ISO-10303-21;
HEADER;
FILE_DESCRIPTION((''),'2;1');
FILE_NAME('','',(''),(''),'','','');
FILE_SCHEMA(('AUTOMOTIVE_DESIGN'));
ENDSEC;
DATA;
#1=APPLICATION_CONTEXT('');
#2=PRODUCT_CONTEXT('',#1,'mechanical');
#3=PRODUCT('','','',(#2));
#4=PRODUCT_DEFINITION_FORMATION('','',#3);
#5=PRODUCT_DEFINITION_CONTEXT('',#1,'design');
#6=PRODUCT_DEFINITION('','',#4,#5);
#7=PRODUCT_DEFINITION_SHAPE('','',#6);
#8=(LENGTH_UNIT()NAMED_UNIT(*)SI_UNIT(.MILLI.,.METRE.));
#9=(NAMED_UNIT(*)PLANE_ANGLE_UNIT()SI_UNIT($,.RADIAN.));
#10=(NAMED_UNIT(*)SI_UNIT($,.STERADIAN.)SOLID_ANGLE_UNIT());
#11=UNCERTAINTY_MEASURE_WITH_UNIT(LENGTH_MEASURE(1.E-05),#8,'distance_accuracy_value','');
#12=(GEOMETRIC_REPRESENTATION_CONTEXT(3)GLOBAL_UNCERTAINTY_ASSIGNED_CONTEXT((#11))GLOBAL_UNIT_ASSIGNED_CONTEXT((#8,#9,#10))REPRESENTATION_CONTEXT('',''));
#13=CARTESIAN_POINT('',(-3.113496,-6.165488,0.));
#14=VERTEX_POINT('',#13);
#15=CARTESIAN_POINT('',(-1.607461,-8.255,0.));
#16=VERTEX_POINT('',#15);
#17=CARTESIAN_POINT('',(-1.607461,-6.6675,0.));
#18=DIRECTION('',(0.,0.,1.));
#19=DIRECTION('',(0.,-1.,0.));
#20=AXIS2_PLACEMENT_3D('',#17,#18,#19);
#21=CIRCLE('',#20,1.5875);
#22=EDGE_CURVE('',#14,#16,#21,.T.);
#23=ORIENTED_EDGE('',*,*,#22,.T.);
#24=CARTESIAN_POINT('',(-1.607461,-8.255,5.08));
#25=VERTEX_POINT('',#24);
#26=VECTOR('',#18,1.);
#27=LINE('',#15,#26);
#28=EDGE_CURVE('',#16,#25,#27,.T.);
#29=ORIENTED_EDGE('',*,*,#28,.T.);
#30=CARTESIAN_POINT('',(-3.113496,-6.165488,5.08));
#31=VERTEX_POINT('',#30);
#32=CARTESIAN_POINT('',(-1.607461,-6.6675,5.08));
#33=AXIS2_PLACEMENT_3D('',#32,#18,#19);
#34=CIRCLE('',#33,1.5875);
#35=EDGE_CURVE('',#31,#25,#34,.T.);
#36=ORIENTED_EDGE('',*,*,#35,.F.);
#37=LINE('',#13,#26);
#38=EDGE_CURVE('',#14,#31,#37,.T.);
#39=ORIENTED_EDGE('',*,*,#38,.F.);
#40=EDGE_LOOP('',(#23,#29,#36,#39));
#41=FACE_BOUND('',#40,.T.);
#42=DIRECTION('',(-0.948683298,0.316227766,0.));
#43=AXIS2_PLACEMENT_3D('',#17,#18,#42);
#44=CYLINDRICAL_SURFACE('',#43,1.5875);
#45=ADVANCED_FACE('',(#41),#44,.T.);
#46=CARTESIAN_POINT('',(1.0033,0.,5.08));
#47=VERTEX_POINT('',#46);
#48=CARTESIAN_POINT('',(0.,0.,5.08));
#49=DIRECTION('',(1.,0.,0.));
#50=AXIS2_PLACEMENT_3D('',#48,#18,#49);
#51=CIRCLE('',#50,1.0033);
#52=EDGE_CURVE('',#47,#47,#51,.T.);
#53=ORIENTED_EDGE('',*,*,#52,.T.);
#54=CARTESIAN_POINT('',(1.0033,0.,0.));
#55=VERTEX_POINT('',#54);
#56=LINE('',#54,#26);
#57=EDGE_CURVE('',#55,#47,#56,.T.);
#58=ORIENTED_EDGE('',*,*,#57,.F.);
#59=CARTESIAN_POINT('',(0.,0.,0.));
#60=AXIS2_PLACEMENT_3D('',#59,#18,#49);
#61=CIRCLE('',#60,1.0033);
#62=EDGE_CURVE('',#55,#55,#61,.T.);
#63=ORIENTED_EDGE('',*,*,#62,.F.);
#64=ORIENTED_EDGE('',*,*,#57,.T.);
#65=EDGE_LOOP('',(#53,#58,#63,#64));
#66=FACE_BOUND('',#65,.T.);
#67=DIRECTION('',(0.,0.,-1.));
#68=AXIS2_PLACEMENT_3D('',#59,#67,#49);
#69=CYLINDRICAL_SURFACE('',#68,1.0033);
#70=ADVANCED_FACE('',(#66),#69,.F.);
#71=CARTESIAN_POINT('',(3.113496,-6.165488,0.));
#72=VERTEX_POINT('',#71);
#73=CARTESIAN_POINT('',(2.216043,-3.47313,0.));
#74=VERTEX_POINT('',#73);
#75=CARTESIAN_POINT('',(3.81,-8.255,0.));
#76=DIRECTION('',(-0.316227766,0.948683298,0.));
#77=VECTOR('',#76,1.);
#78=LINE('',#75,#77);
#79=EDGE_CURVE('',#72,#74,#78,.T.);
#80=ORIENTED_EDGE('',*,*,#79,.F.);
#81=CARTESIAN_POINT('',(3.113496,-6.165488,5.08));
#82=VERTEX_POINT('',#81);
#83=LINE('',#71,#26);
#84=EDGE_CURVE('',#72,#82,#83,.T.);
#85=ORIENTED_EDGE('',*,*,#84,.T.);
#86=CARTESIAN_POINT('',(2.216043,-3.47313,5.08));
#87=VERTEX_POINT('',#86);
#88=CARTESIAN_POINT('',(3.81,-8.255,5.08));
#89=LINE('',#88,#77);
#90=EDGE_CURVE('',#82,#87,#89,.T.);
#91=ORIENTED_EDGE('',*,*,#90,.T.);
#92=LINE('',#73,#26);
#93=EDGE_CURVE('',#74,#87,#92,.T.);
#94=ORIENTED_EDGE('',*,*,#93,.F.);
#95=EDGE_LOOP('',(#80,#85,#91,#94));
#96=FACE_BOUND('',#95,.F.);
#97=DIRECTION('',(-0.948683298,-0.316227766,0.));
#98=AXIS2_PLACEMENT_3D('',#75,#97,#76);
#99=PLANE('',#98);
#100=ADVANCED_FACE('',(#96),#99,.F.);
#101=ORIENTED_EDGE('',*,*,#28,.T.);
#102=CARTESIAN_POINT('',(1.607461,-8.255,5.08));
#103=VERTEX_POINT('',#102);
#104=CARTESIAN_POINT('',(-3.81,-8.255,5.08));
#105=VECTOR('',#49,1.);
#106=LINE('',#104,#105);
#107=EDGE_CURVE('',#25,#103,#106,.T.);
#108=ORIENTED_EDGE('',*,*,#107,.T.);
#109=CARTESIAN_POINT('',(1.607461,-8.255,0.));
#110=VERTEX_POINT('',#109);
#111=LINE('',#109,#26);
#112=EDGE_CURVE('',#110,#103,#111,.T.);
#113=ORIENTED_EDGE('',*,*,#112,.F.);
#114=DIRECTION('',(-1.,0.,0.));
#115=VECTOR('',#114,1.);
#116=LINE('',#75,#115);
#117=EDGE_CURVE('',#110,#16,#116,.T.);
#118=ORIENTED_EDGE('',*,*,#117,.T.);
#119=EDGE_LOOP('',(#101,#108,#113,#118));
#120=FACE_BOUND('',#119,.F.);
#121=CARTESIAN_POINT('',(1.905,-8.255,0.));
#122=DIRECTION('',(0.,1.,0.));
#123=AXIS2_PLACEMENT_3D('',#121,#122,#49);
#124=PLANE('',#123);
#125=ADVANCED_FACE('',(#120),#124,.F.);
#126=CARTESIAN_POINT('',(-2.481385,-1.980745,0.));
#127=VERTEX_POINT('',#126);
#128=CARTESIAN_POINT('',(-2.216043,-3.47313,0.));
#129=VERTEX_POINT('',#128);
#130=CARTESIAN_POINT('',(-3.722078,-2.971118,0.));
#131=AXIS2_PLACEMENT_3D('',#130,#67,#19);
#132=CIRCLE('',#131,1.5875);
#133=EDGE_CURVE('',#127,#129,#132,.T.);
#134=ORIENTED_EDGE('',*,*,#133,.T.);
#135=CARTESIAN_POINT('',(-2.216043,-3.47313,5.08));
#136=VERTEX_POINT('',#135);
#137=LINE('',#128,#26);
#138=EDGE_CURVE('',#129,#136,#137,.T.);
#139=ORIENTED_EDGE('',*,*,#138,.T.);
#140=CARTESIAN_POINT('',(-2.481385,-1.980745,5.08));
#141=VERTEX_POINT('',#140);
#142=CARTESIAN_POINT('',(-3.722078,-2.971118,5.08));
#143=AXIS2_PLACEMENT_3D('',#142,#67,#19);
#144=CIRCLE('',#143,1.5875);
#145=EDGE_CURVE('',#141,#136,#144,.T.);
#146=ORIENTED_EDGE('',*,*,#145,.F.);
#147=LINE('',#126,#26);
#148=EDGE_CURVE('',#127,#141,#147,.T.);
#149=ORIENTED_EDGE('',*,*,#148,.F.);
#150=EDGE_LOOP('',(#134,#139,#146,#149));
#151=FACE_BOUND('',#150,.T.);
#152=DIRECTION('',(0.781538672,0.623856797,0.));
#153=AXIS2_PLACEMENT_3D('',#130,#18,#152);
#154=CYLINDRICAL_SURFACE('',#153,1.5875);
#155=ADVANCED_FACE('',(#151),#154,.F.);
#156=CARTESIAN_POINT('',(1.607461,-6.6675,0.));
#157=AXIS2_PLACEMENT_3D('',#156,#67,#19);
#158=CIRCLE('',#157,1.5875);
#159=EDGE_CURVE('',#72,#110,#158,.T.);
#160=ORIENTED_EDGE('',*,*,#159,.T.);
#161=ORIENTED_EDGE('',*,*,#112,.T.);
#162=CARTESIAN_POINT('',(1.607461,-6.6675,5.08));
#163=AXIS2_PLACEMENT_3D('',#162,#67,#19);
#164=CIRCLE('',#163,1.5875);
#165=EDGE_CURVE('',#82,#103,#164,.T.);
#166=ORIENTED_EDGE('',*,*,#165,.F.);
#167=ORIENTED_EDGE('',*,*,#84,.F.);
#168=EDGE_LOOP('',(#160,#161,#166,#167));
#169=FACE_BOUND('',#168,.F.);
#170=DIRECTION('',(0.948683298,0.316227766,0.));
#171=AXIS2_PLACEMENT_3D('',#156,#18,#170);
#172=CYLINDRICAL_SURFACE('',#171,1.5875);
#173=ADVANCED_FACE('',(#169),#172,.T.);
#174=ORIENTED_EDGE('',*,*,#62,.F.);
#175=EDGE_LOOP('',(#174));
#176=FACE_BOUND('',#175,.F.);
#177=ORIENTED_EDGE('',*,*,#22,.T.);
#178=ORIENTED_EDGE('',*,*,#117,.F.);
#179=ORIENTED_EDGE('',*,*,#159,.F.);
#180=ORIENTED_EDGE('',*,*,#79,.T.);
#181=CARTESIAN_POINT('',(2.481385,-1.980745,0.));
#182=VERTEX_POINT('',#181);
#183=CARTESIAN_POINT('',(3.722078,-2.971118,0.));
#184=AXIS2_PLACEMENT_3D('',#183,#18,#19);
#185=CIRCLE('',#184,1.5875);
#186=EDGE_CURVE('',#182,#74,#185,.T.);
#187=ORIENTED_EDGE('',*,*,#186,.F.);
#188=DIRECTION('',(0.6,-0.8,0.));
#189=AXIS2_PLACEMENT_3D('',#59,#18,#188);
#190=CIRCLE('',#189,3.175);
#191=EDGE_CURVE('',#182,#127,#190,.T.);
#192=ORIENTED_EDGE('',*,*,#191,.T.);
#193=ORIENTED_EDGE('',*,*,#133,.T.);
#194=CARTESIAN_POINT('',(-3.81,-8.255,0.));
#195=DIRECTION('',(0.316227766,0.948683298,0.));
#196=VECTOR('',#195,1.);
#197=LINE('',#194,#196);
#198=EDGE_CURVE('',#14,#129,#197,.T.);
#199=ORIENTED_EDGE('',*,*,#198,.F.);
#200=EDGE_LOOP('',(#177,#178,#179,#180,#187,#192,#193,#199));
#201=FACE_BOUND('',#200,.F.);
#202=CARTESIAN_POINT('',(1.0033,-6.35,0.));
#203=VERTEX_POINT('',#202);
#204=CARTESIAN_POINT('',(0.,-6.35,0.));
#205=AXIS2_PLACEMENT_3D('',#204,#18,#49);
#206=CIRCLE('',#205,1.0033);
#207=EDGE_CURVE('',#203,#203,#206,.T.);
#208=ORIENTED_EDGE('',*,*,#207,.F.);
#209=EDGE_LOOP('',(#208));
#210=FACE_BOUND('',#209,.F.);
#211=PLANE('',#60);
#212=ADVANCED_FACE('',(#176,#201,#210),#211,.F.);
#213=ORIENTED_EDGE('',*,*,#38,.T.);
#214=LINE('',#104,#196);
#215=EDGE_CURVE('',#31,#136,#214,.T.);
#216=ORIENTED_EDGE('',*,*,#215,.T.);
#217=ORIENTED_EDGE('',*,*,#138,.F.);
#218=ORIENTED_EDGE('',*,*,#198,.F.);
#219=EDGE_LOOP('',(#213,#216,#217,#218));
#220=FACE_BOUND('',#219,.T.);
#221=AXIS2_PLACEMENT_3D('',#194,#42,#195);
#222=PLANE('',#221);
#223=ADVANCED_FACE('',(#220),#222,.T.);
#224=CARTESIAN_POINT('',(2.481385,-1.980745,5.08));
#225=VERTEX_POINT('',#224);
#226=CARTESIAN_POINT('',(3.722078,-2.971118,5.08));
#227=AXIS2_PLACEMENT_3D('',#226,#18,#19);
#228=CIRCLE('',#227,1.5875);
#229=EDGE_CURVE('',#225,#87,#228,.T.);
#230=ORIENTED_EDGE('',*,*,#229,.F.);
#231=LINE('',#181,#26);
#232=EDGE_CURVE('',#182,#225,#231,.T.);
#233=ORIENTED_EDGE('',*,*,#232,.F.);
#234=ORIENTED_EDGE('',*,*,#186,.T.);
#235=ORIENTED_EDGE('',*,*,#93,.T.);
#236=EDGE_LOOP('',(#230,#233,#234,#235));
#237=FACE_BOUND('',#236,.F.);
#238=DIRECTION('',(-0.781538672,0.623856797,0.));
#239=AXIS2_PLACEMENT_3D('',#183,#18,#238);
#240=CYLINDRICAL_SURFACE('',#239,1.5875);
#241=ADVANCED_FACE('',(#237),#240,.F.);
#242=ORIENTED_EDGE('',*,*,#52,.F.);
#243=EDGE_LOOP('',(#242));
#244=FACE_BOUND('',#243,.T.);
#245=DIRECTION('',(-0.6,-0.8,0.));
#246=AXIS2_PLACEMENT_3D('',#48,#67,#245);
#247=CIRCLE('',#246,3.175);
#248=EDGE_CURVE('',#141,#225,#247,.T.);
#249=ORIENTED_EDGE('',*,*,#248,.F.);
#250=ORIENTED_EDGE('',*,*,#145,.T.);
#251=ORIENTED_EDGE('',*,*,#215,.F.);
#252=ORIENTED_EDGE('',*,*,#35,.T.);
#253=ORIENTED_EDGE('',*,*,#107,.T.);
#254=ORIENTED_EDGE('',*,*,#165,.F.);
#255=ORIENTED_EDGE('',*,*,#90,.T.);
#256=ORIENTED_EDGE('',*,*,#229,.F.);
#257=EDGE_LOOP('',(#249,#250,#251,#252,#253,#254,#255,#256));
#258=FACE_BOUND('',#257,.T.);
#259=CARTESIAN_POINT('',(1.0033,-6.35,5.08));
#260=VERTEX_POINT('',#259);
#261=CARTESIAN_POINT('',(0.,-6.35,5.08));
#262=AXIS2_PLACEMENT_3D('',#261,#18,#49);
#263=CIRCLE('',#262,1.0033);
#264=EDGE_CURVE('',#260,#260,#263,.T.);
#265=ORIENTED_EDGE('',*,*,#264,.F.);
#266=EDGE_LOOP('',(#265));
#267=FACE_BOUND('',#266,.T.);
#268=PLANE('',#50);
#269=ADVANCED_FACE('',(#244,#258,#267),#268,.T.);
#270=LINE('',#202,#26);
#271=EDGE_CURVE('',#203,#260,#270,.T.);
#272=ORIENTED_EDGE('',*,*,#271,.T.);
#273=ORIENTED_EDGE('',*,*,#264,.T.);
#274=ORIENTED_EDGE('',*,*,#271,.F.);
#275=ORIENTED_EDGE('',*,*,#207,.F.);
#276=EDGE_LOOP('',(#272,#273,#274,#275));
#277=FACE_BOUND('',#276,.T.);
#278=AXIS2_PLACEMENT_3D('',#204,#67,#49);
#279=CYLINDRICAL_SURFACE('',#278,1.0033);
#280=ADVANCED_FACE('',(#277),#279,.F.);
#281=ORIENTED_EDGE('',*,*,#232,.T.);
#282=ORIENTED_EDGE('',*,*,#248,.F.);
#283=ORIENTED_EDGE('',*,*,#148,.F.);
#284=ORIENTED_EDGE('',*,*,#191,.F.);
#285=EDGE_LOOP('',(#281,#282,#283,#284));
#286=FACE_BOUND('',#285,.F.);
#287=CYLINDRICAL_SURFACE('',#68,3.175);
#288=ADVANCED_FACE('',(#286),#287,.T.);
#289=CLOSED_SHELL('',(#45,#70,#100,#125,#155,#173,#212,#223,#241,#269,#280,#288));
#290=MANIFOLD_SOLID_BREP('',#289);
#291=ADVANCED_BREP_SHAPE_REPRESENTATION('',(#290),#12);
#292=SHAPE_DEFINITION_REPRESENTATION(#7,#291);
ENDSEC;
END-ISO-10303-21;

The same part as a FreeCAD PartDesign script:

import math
import FreeCAD as App
import Part
import Sketcher
Q = App.Units.Quantity


def edges_at(feature, points):
    """Names of the edges that pass closest to the given points."""
    edges = feature.Shape.Edges
    near = lambda p: min(range(len(edges)), key=lambda i: edges[i].distToShape(Part.Vertex(*p))[0])
    return sorted({f"Edge{near(p) + 1}" for p in points})


def add_polygon(sketch, points):
    """Adds a closed chain of lines whose ends are joined by coincident constraints."""
    first, n = sketch.GeometryCount, len(points)
    for a, b in zip(points, points[1:] + points[:1]):
        sketch.addGeometry(Part.LineSegment(App.Vector(*a, 0), App.Vector(*b, 0)), False)
    for i in range(n):
        sketch.addConstraint(Sketcher.Constraint("Coincident", first + i, 2, first + (i + 1) % n, 1))

doc = App.newDocument("Part")
body = doc.addObject("PartDesign::Body", "Body")

sketch1 = doc.addObject("Sketcher::SketchObject", "Sketch")
body.addObject(sketch1)
sketch1.AttachmentSupport = (doc.XY_Plane, [""])
sketch1.MapMode = "FlatFace"
sketch1.addGeometry(Part.ArcOfCircle(Part.Circle(App.Vector(0, 0, 0), App.Vector(0, 0, 1), 3.2), math.radians(-53), math.radians(233)), False)
sketch1.addGeometry(Part.LineSegment(App.Vector(-1.9, -2.5, 0), App.Vector(-1.9, -8.3, 0)), False)
sketch1.addGeometry(Part.LineSegment(App.Vector(-1.9, -8.3, 0), App.Vector(1.9, -8.3, 0)), False)
sketch1.addGeometry(Part.LineSegment(App.Vector(1.9, -8.3, 0), App.Vector(1.9, -2.5, 0)), False)
sketch1.addGeometry(Part.Circle(App.Vector(0, 0, 0), App.Vector(0, 0, 1), 1), False)
sketch1.addGeometry(Part.Circle(App.Vector(0, -6.3, 0), App.Vector(0, 0, 1), 1), False)
sketch1.addConstraint(Sketcher.Constraint("Coincident", 0, 2, 1, 1))
sketch1.addConstraint(Sketcher.Constraint("Coincident", 1, 2, 2, 1))
sketch1.addConstraint(Sketcher.Constraint("Coincident", 2, 2, 3, 1))
sketch1.addConstraint(Sketcher.Constraint("Coincident", 3, 2, 0, 1))
sketch1.addConstraint(Sketcher.Constraint("Vertical", 1))
sketch1.addConstraint(Sketcher.Constraint("Horizontal", 2))
sketch1.addConstraint(Sketcher.Constraint("Vertical", 3))
sketch1.addConstraint(Sketcher.Constraint("Coincident", 0, 3, -1, 1))
sketch1.addConstraint(Sketcher.Constraint("Coincident", 4, 3, -1, 1))
sketch1.addConstraint(Sketcher.Constraint("Equal", 4, 5))
sketch1.addConstraint(Sketcher.Constraint("PointOnObject", 5, 3, -2))
sketch1.addConstraint(Sketcher.Constraint("Horizontal", 0, 2, 3, 2))
sketch1.addConstraint(Sketcher.Constraint("Diameter", 4, Q("0.079 in")))
sketch1.addConstraint(Sketcher.Constraint("Radius", 0, Q("0.125 in")))
sketch1.addConstraint(Sketcher.Constraint("DistanceX", 2, 1, 2, 2, Q("0.15 in")))
sketch1.addConstraint(Sketcher.Constraint("DistanceY", 1, 2, 1, 1, Q("0.225 in")))
sketch1.addConstraint(Sketcher.Constraint("DistanceY", 5, 3, -1, 1, Q("0.25 in")))
pad1 = doc.addObject("PartDesign::Pad", "Pad")
body.addObject(pad1)
pad1.Profile = sketch1
pad1.Length = Q("0.2 in")

sketch2 = doc.addObject("Sketcher::SketchObject", "Sketch001")
body.addObject(sketch2)
sketch2.AttachmentSupport = (doc.XY_Plane, [""])
sketch2.MapMode = "FlatFace"
add_polygon(sketch2, [(-1.9, -8.3), (-1.9, -2.5), (-3.8, -8.3)])
add_polygon(sketch2, [(3.8, -8.3), (1.9, -2.5), (1.9, -8.3)])
sketch2.addConstraint(Sketcher.Constraint("Vertical", 0))
sketch2.addConstraint(Sketcher.Constraint("Horizontal", 2))
sketch2.addConstraint(Sketcher.Constraint("Vertical", 4))
sketch2.addConstraint(Sketcher.Constraint("Horizontal", 5))
sketch2.addConstraint(Sketcher.Constraint("Symmetric", 0, 2, 3, 2, -2))
sketch2.addConstraint(Sketcher.Constraint("Symmetric", 1, 2, 5, 2, -2))
sketch2.addConstraint(Sketcher.Constraint("DistanceX", 2, 1, 2, 2, Q("0.075 in")))
sketch2.addConstraint(Sketcher.Constraint("DistanceY", 0, 1, 0, 2, Q("0.225 in")))
sketch2.addConstraint(Sketcher.Constraint("DistanceX", 1, 2, -1, 1, Q("0.15 in")))
sketch2.addConstraint(Sketcher.Constraint("DistanceY", 0, 2, -1, 1, Q("0.1 in")))
pad2 = doc.addObject("PartDesign::Pad", "Pad001")
body.addObject(pad2)
pad2.Profile = sketch2
pad2.Length = Q("0.2 in")
doc.recompute()

fillet = doc.addObject("PartDesign::Fillet", "Fillet")
body.addObject(fillet)
fillet.Base = (pad2, edges_at(pad2, [
    (3.81, -8.255, 2.54),
    (-3.81, -8.255, 2.54),
    (1.905, -2.54, 2.54),
    (-1.905, -2.54, 2.54),
]))
fillet.Radius = Q("0.0625 in")

doc.recompute()
